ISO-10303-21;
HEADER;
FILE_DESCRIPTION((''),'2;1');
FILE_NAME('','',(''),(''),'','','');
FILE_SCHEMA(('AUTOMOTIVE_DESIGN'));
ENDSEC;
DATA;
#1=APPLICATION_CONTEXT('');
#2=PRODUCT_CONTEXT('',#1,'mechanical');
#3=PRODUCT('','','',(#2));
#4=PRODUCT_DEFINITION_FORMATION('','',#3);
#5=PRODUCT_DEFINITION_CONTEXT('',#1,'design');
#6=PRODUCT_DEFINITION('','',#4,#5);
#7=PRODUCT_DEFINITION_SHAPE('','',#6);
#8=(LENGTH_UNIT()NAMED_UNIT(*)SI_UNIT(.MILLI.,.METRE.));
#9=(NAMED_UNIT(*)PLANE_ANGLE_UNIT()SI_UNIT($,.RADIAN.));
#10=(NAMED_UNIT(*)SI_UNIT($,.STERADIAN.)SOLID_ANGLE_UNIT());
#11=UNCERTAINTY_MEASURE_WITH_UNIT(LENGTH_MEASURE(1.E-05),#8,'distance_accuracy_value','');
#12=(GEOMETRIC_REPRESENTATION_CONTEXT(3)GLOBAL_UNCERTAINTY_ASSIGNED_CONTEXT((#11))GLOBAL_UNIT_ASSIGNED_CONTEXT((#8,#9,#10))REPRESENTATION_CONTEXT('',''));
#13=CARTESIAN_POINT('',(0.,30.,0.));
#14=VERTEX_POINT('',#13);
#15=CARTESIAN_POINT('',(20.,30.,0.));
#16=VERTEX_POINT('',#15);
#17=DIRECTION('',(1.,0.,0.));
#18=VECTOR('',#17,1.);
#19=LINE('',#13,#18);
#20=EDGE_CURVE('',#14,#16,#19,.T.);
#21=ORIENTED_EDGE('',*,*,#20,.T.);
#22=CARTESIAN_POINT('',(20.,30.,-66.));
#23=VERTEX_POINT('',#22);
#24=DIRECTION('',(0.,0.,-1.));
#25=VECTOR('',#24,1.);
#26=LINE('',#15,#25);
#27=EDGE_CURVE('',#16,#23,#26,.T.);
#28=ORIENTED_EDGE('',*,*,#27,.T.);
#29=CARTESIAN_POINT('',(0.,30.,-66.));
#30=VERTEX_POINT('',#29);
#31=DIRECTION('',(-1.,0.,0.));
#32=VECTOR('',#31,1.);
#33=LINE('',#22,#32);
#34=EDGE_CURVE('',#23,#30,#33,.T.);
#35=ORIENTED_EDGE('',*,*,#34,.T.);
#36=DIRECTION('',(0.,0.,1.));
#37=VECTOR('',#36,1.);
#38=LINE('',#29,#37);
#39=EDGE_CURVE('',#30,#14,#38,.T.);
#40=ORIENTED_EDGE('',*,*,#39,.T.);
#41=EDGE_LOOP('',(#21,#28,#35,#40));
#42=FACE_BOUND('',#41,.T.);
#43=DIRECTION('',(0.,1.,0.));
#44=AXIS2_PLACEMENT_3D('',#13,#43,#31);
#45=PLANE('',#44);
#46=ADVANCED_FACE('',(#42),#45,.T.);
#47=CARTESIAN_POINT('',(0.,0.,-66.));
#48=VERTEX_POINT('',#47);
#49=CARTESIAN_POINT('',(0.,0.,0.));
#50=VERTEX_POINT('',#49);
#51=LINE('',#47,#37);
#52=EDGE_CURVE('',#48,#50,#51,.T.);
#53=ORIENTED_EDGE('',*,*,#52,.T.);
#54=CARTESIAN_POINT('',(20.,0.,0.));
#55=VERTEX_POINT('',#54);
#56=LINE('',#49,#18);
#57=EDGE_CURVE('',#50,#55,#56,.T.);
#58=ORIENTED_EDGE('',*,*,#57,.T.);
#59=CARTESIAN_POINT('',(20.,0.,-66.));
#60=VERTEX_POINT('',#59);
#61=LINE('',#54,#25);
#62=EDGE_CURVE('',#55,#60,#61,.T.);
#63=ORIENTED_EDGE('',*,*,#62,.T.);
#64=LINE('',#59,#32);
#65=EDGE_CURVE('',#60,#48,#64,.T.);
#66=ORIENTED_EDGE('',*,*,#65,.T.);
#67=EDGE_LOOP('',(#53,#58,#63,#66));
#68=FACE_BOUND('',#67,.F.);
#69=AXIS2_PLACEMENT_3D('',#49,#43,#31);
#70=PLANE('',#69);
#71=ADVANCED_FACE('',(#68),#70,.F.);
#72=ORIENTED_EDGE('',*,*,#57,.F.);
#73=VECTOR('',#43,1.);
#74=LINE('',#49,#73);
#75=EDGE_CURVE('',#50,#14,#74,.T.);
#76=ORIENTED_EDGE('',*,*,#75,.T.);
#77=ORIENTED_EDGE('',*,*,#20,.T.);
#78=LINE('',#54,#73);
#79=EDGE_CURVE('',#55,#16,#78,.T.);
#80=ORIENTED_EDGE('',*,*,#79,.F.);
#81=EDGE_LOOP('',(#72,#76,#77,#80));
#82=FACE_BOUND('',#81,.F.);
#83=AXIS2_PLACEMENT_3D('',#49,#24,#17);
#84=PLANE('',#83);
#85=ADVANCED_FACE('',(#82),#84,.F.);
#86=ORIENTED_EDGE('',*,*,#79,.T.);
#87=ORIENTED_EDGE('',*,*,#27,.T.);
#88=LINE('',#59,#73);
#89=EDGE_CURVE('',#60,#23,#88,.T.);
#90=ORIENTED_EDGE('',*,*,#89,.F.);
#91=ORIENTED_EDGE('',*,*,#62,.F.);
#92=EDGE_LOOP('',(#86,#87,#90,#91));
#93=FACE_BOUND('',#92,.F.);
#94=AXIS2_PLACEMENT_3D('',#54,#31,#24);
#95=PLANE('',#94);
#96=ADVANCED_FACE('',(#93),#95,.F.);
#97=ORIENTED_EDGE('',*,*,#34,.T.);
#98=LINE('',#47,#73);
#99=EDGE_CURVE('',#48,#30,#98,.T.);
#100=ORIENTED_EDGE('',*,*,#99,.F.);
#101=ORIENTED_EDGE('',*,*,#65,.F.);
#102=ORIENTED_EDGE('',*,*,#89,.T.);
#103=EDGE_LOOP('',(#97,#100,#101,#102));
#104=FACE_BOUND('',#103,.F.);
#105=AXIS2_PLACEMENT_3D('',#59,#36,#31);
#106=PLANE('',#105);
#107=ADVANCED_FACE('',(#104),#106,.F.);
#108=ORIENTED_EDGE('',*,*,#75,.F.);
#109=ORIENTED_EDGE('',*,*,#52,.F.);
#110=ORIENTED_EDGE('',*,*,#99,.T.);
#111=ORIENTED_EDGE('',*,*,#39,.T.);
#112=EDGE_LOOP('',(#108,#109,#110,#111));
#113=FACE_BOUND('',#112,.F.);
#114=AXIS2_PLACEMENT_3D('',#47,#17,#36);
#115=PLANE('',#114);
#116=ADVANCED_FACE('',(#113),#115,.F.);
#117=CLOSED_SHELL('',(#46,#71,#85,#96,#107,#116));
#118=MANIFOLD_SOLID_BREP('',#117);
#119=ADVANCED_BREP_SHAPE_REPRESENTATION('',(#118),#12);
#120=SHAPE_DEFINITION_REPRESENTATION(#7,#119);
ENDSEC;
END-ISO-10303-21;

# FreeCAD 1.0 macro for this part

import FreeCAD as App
import Part
import Sketcher

V = App.Vector


def add_polygon(sketch, points):
    """Adds a closed chain of lines whose ends are joined by coincident constraints."""
    first, n = sketch.GeometryCount, len(points)
    for a, b in zip(points, points[1:] + points[:1]):
        sketch.addGeometry(Part.LineSegment(App.Vector(*a, 0), App.Vector(*b, 0)), False)
    for i in range(n):
        sketch.addConstraint(Sketcher.Constraint("Coincident", first + i, 2, first + (i + 1) % n, 1))

doc = App.newDocument("Part")
body = doc.addObject("PartDesign::Body", "Body")

sketch1 = doc.addObject("Sketcher::SketchObject", "Sketch")
body.addObject(sketch1)
sketch1.AttachmentSupport = (doc.XZ_Plane, [""])
sketch1.MapMode = "FlatFace"
add_polygon(sketch1, [(0, -66), (0, 0), (20, 0), (20, -66)])
sketch1.addConstraint(Sketcher.Constraint("Vertical", 0))
sketch1.addConstraint(Sketcher.Constraint("Horizontal", 1))
sketch1.addConstraint(Sketcher.Constraint("Vertical", 2))
sketch1.addConstraint(Sketcher.Constraint("Horizontal", 3))
sketch1.addConstraint(Sketcher.Constraint("Coincident", 0, 2, -1, 1))
sketch1.addConstraint(Sketcher.Constraint("DistanceX", 1, 1, 1, 2, 20.0))
sketch1.addConstraint(Sketcher.Constraint("DistanceY", 0, 1, 0, 2, 66.0))
pad1 = doc.addObject("PartDesign::Pad", "Pad")
body.addObject(pad1)
pad1.Profile = sketch1
pad1.Length = 30
pad1.Reversed = True

doc.recompute()
